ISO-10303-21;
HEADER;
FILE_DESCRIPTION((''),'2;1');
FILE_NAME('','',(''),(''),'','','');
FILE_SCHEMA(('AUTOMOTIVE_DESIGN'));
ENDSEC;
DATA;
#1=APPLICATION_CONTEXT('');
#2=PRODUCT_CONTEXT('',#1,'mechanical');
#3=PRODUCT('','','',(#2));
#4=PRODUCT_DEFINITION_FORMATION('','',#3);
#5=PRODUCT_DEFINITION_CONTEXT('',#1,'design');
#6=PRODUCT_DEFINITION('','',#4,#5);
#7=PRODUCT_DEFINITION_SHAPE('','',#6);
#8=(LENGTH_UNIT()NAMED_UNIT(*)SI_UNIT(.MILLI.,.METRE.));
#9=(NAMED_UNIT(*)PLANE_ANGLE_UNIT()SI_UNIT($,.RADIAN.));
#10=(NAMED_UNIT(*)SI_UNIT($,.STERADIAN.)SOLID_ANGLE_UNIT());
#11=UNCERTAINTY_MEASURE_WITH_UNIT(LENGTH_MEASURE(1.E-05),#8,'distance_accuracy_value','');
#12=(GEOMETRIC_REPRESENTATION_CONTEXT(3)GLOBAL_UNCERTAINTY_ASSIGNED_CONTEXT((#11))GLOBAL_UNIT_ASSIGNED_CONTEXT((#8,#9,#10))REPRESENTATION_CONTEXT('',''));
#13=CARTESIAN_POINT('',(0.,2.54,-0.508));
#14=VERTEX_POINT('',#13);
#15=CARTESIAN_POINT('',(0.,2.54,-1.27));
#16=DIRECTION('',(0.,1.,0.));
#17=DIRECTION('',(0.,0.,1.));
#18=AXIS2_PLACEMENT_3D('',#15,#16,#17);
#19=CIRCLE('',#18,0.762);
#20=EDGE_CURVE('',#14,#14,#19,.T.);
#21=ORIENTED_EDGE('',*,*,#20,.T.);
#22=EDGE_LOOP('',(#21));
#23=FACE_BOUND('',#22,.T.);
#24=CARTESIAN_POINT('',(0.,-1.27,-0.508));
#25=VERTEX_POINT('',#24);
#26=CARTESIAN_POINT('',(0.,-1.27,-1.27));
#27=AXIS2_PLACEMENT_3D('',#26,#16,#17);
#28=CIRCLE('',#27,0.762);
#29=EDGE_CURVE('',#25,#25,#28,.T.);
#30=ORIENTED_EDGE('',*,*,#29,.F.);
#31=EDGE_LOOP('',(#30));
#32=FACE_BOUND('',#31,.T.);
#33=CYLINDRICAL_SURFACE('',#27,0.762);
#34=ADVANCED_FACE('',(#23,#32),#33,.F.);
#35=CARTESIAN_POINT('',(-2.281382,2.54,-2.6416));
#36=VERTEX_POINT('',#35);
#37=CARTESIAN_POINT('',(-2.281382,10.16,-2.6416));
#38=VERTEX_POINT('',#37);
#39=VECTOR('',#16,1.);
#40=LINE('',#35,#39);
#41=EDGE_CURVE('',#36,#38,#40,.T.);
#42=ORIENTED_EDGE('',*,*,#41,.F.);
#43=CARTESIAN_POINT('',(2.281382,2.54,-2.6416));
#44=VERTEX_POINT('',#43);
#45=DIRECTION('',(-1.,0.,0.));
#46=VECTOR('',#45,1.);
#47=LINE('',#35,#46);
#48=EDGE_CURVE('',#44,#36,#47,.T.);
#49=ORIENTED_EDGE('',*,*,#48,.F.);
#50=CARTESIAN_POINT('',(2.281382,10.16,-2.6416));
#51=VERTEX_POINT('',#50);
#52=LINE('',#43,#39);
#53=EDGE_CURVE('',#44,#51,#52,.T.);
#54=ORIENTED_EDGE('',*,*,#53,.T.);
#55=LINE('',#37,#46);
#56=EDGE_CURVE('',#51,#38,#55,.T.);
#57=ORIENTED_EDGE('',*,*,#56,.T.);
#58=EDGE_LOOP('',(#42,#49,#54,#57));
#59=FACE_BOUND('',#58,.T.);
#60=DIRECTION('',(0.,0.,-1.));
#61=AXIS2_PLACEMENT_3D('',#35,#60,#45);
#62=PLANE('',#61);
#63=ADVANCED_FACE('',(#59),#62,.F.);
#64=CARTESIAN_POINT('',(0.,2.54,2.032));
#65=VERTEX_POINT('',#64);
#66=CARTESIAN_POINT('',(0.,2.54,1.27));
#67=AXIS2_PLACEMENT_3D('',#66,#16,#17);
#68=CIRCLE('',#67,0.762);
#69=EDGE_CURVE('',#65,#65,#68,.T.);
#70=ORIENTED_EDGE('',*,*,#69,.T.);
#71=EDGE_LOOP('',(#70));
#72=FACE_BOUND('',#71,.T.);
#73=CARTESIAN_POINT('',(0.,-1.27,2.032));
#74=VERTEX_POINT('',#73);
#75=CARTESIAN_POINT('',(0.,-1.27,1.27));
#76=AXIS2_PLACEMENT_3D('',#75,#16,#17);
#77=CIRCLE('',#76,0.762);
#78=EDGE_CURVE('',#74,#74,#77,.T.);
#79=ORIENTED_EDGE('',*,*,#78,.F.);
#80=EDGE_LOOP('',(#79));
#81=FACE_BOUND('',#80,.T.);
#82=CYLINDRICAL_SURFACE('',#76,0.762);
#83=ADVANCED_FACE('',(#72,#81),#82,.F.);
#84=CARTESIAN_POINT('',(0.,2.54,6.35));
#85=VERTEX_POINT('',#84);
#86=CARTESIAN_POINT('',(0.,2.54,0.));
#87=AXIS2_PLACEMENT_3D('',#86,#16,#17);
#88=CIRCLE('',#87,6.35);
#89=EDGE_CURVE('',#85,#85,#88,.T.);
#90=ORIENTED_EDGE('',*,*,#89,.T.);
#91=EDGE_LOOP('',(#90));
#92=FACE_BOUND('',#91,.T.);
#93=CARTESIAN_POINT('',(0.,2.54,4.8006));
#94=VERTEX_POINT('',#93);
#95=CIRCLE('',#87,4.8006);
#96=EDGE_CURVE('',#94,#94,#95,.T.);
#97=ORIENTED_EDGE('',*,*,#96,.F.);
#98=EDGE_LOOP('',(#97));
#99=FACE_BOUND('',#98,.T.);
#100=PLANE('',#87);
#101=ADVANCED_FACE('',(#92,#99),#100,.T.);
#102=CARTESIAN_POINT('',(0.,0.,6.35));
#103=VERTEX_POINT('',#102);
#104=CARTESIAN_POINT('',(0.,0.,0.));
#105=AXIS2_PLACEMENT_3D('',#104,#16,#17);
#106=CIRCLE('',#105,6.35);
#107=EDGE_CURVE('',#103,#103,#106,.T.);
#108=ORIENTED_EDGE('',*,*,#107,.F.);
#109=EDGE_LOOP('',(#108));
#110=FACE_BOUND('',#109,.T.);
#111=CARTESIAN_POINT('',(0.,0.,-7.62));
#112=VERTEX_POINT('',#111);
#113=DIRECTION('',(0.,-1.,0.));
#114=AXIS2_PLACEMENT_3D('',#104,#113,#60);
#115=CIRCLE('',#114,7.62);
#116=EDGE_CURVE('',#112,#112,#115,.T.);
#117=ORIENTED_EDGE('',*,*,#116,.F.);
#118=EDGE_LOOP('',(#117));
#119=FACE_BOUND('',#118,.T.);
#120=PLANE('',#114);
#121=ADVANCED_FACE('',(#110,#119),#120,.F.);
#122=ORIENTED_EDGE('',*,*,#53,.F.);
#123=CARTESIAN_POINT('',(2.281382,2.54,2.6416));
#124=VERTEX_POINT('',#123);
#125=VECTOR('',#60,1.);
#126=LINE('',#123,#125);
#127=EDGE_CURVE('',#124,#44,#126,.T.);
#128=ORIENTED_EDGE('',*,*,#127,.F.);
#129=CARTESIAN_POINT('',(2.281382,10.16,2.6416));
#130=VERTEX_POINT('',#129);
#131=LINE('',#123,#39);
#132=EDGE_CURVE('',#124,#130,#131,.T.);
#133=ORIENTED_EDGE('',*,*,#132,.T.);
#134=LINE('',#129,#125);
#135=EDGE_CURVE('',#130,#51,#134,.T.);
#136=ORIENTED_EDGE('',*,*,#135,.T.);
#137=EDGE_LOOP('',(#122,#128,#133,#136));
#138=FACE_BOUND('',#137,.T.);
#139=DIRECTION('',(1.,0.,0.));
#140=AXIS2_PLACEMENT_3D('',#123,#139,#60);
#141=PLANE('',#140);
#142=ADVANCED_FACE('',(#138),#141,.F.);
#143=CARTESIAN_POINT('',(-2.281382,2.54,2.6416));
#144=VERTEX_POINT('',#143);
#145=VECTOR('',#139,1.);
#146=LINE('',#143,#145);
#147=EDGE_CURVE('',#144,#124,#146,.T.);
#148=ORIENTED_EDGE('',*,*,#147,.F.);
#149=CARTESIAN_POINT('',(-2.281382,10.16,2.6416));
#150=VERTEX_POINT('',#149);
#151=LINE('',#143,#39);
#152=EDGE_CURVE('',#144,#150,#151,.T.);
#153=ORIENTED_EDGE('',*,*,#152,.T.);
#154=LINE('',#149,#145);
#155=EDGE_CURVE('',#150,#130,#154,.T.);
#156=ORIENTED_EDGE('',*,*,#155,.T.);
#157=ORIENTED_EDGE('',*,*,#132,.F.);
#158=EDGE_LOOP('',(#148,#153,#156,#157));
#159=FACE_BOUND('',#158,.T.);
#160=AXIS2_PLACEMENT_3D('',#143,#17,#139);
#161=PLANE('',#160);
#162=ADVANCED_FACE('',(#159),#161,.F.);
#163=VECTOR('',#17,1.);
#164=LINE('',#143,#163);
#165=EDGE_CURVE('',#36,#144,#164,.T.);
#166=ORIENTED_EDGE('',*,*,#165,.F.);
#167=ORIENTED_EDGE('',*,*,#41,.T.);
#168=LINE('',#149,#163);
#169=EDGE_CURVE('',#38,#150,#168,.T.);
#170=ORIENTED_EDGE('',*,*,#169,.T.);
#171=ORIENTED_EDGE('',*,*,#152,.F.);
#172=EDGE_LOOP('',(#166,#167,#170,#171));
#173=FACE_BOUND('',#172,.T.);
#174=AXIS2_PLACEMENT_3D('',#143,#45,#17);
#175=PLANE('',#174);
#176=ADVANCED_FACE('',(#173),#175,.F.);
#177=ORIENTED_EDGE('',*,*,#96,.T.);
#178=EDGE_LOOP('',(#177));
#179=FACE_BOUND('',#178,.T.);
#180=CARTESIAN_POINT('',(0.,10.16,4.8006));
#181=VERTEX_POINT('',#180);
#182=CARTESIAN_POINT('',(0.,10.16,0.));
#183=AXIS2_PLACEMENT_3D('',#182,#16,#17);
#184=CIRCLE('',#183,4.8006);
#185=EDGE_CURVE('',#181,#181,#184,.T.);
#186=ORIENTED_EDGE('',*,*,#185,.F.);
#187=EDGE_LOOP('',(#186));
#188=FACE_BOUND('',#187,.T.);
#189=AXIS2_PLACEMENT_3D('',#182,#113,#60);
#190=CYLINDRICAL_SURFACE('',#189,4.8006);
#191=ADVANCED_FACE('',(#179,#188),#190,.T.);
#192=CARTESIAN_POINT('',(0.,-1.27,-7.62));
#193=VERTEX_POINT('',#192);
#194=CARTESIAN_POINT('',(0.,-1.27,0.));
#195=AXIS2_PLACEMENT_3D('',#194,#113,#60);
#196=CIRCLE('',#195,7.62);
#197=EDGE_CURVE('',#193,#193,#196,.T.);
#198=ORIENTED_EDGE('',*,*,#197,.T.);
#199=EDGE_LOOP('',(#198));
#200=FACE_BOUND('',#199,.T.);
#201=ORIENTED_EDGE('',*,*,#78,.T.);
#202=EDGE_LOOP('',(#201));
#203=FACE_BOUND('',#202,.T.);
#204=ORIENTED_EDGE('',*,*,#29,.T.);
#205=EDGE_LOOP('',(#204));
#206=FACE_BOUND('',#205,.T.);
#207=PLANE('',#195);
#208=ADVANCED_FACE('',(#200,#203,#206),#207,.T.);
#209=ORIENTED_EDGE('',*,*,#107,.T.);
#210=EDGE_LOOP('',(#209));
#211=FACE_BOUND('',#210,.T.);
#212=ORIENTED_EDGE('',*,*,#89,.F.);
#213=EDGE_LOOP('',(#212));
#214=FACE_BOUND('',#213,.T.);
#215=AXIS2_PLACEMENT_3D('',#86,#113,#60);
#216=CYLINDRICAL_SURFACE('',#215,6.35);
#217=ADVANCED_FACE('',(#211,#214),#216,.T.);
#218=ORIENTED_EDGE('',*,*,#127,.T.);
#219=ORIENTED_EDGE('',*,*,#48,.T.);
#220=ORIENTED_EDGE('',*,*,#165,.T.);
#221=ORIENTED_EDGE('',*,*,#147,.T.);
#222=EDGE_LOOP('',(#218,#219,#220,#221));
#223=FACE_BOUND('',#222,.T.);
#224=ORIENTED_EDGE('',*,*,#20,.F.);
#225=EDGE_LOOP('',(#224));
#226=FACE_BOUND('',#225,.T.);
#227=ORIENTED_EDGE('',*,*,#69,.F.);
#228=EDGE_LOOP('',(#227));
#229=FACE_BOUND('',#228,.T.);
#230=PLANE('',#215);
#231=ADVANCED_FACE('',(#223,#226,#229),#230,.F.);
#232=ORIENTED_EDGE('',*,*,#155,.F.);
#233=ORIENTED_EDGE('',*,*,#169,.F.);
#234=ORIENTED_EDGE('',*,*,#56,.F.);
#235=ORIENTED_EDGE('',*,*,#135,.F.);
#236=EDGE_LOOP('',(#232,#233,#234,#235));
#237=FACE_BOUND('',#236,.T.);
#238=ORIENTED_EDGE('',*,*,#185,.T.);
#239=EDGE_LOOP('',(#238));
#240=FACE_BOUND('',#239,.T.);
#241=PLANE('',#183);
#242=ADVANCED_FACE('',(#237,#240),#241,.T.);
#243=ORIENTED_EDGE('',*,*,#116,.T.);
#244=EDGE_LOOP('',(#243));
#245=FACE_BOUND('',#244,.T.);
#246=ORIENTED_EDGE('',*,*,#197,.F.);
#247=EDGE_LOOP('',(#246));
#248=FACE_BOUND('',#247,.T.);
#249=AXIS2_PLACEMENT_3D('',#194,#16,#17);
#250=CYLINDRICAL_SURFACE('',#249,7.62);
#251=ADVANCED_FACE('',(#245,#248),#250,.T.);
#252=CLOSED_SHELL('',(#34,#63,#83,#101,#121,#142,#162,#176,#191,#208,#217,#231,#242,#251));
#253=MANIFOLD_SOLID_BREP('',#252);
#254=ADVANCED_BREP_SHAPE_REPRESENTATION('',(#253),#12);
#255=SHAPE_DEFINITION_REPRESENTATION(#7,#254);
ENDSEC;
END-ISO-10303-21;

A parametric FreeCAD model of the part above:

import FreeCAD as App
import Part
import Sketcher
Q = App.Units.Quantity


def add_polygon(sketch, points):
    """Adds a closed chain of lines whose ends are joined by coincident constraints."""
    first, n = sketch.GeometryCount, len(points)
    for a, b in zip(points, points[1:] + points[:1]):
        sketch.addGeometry(Part.LineSegment(App.Vector(*a, 0), App.Vector(*b, 0)), False)
    for i in range(n):
        sketch.addConstraint(Sketcher.Constraint("Coincident", first + i, 2, first + (i + 1) % n, 1))

doc = App.newDocument("Part")
params = doc.addObject("Spreadsheet::Sheet", "Params")
for row, (alias, value) in enumerate([
    ("sketch1_diameter", "0.5 in"),
    ("pad1_length", "0.1 in"),
    ("sketch2_diameter", "0.378 in"),
    ("pad2_length", "0.3 in"),
    ("sketch3_height", "0.208 in"),
    ("pocket1_length", "0.3 in"),
    ("sketch4_diameter", "0.6 in"),
    ("pad3_length", "0.05 in"),
    ("sketch5_diameter", "0.06 in"),
    ("sketch6_diameter", "0.06 in"),
], start=1):
    params.set(f"A{row}", alias)
    params.set(f"B{row}", "=" + value)
    params.setAlias(f"B{row}", alias)

body = doc.addObject("PartDesign::Body", "Body")

# Sketch on XZ plane
sketch1 = doc.addObject("Sketcher::SketchObject", "Sketch")
body.addObject(sketch1)
sketch1.AttachmentSupport = (doc.XZ_Plane, [""])
sketch1.MapMode = "FlatFace"
sketch1.addGeometry(Part.Circle(App.Vector(0, 0, 0), App.Vector(0, 0, 1), 6), False)
sketch1.addConstraint([
    Sketcher.Constraint("Coincident", 0, 3, -1, 1),
    Sketcher.Constraint("Diameter", 0, Q("0.5 in")),
])
sketch1.setExpression("Constraints[1]", "Params.sketch1_diameter")
pad1 = doc.addObject("PartDesign::Pad", "Pad")
body.addObject(pad1)
pad1.Profile = sketch1
pad1.setExpression("Length", "Params.pad1_length")
pad1.Reversed = True

# Sketch on XZ plane
sketch2 = doc.addObject("Sketcher::SketchObject", "Sketch001")
body.addObject(sketch2)
sketch2.AttachmentSupport = (doc.XZ_Plane, [""])
sketch2.MapMode = "FlatFace"
sketch2.AttachmentOffset = App.Placement(App.Vector(0, 0, -0.1 * 25.4), App.Rotation())
sketch2.addGeometry(Part.Circle(App.Vector(0, 0, 0), App.Vector(0, 0, 1), 4.8), False)
sketch2.addConstraint([
    Sketcher.Constraint("Coincident", 0, 3, -1, 1),
    Sketcher.Constraint("Diameter", 0, Q("0.378 in")),
])
sketch2.setExpression("Constraints[1]", "Params.sketch2_diameter")
pad2 = doc.addObject("PartDesign::Pad", "Pad001")
body.addObject(pad2)
pad2.Profile = sketch2
pad2.setExpression("Length", "Params.pad2_length")
pad2.Reversed = True

# Sketch on XZ plane
sketch3 = doc.addObject("Sketcher::SketchObject", "Sketch002")
body.addObject(sketch3)
sketch3.AttachmentSupport = (doc.XZ_Plane, [""])
sketch3.MapMode = "FlatFace"
sketch3.AttachmentOffset = App.Placement(App.Vector(0, 0, -0.4 * 25.4), App.Rotation())
add_polygon(sketch3, [(-2.3, -2.6), (-2.3, 2.6), (2.3, 2.6), (2.3, -2.6)])  # lines 0-3
sketch3.addConstraint([
    Sketcher.Constraint("Vertical", 0),
    Sketcher.Constraint("Horizontal", 1),
    Sketcher.Constraint("Vertical", 2),
    Sketcher.Constraint("Horizontal", 3),
    Sketcher.Constraint("Symmetric", 0, 2, 2, 2, -1, 1),
    Sketcher.Constraint("DistanceY", 0, 1, 0, 2, Q("0.208 in")),
    Sketcher.Constraint("DistanceX", 1, 1, 1, 2, 4.562764),
])
sketch3.setExpression("Constraints[9]", "Params.sketch3_height")
pocket1 = doc.addObject("PartDesign::Pocket", "Pocket")
body.addObject(pocket1)
pocket1.Profile = sketch3
pocket1.setExpression("Length", "Params.pocket1_length")
pocket1.Reversed = True

# Sketch on XZ plane
sketch4 = doc.addObject("Sketcher::SketchObject", "Sketch003")
body.addObject(sketch4)
sketch4.AttachmentSupport = (doc.XZ_Plane, [""])
sketch4.MapMode = "FlatFace"
sketch4.addGeometry(Part.Circle(App.Vector(0, 0, 0), App.Vector(0, 0, 1), 8), False)
sketch4.addConstraint([
    Sketcher.Constraint("Coincident", 0, 3, -1, 1),
    Sketcher.Constraint("Diameter", 0, Q("0.6 in")),
])
sketch4.setExpression("Constraints[1]", "Params.sketch4_diameter")
pad3 = doc.addObject("PartDesign::Pad", "Pad002")
body.addObject(pad3)
pad3.Profile = sketch4
pad3.setExpression("Length", "Params.pad3_length")

# Sketch on XZ plane
sketch5 = doc.addObject("Sketcher::SketchObject", "Sketch004")
body.addObject(sketch5)
sketch5.AttachmentSupport = (doc.XZ_Plane, [""])
sketch5.MapMode = "FlatFace"
sketch5.AttachmentOffset = App.Placement(App.Vector(0, 0, -0.1 * 25.4), App.Rotation())
sketch5.addGeometry(Part.Circle(App.Vector(0, 1.3, 0), App.Vector(0, 0, 1), 0.8), False)
sketch5.addConstraint([
    Sketcher.Constraint("PointOnObject", 0, 3, -2),
    Sketcher.Constraint("Diameter", 0, Q("0.06 in")),
    Sketcher.Constraint("DistanceY", -1, 1, 0, 3, Q("0.05 in")),
])
sketch5.setExpression("Constraints[1]", "Params.sketch5_diameter")
pocket2 = doc.addObject("PartDesign::Pocket", "Pocket001")
body.addObject(pocket2)
pocket2.Profile = sketch5
pocket2.Type = "ThroughAll"
pocket2.Reversed = True

# Sketch on XZ plane
sketch6 = doc.addObject("Sketcher::SketchObject", "Sketch005")
body.addObject(sketch6)
sketch6.AttachmentSupport = (doc.XZ_Plane, [""])
sketch6.MapMode = "FlatFace"
sketch6.AttachmentOffset = App.Placement(App.Vector(0, 0, -0.1 * 25.4), App.Rotation())
sketch6.addGeometry(Part.Circle(App.Vector(0, -1.3, 0), App.Vector(0, 0, 1), 0.8), False)
sketch6.addConstraint([
    Sketcher.Constraint("PointOnObject", 0, 3, -2),
    Sketcher.Constraint("Diameter", 0, Q("0.06 in")),
    Sketcher.Constraint("DistanceY", 0, 3, -1, 1, Q("0.05 in")),
])
sketch6.setExpression("Constraints[1]", "Params.sketch6_diameter")
pocket3 = doc.addObject("PartDesign::Pocket", "Pocket002")
body.addObject(pocket3)
pocket3.Profile = sketch6
pocket3.Type = "ThroughAll"
pocket3.Reversed = True

doc.recompute()
